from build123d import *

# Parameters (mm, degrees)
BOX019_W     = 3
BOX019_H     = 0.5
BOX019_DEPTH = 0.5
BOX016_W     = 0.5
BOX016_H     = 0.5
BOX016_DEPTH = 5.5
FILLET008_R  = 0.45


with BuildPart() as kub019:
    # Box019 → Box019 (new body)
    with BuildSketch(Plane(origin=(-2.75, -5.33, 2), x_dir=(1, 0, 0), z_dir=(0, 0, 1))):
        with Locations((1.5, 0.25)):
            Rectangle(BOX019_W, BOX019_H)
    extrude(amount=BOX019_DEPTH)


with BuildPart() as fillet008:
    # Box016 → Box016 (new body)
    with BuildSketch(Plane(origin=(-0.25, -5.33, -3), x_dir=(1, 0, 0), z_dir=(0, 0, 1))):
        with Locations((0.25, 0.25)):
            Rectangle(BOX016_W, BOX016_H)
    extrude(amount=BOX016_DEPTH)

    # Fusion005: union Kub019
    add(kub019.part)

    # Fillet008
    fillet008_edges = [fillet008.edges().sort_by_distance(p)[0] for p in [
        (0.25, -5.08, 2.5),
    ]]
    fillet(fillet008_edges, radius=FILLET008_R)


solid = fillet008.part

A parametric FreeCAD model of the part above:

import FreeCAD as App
import Part
import Sketcher


def edges_at(feature, points):
    """Names of the edges that pass closest to the given points."""
    edges = feature.Shape.Edges
    near = lambda p: min(range(len(edges)), key=lambda i: edges[i].distToShape(Part.Vertex(*p))[0])
    return sorted({f"Edge{near(p) + 1}" for p in points})

doc = App.newDocument("Part")
body = doc.addObject("PartDesign::Body", "Body")

sketch1 = body.newObject("Sketcher::SketchObject", "Sketch")
sketch1.AttachmentSupport = (doc.getObject("XY_Plane"), [""])
sketch1.MapMode = "FlatFace"
sketch1.AttachmentOffset = App.Placement(App.Vector(0, 0, 2), App.Rotation())
sketch1.addGeometry([
    Part.LineSegment(App.Vector(-2.8, -4.8, 0), App.Vector(-2.8, -5.3, 0)),
    Part.LineSegment(App.Vector(-2.8, -5.3, 0), App.Vector(0.2, -5.3, 0)),
    Part.LineSegment(App.Vector(0.2, -5.3, 0), App.Vector(0.2, -4.8, 0)),
    Part.LineSegment(App.Vector(0.2, -4.8, 0), App.Vector(-2.8, -4.8, 0)),
], False)
sketch1.addConstraint([
    Sketcher.Constraint("Coincident", 0, 2, 1, 1),
    Sketcher.Constraint("Coincident", 1, 2, 2, 1),
    Sketcher.Constraint("Coincident", 2, 2, 3, 1),
    Sketcher.Constraint("Coincident", 3, 2, 0, 1),
    Sketcher.Constraint("Vertical", 0),
    Sketcher.Constraint("Horizontal", 1),
    Sketcher.Constraint("Vertical", 2),
    Sketcher.Constraint("Horizontal", 3),
    Sketcher.Constraint("DistanceX", 1, 1, 1, 2, 3.0),
    Sketcher.Constraint("DistanceY", 0, 2, 0, 1, 0.5),
    Sketcher.Constraint("DistanceX", 0, 2, -1, 1, 2.75),
    Sketcher.Constraint("DistanceY", 0, 2, -1, 1, 5.33),
])
pad1 = body.newObject("PartDesign::Pad", "Pad")
pad1.Profile = sketch1
pad1.Length = 0.5
body2 = doc.addObject("PartDesign::Body", "Body001")

sketch2 = body2.newObject("Sketcher::SketchObject", "Sketch001")
sketch2.AttachmentSupport = (doc.getObject("XY_Plane001"), [""])
sketch2.MapMode = "FlatFace"
sketch2.AttachmentOffset = App.Placement(App.Vector(0, 0, -3), App.Rotation())
sketch2.addGeometry([
    Part.LineSegment(App.Vector(-0.2, -4.8, 0), App.Vector(-0.2, -5.3, 0)),
    Part.LineSegment(App.Vector(-0.2, -5.3, 0), App.Vector(0.2, -5.3, 0)),
    Part.LineSegment(App.Vector(0.2, -5.3, 0), App.Vector(0.2, -4.8, 0)),
    Part.LineSegment(App.Vector(0.2, -4.8, 0), App.Vector(-0.2, -4.8, 0)),
], False)
sketch2.addConstraint([
    Sketcher.Constraint("Coincident", 0, 2, 1, 1),
    Sketcher.Constraint("Coincident", 1, 2, 2, 1),
    Sketcher.Constraint("Coincident", 2, 2, 3, 1),
    Sketcher.Constraint("Coincident", 3, 2, 0, 1),
    Sketcher.Constraint("Vertical", 0),
    Sketcher.Constraint("Horizontal", 1),
    Sketcher.Constraint("Vertical", 2),
    Sketcher.Constraint("Horizontal", 3),
    Sketcher.Constraint("Equal", 3, 0),
    Sketcher.Constraint("DistanceX", 1, 1, 1, 2, 0.5),
    Sketcher.Constraint("DistanceX", 0, 2, -1, 1, 0.25),
    Sketcher.Constraint("DistanceY", 0, 2, -1, 1, 5.33),
])
pad2 = body2.newObject("PartDesign::Pad", "Pad001")
pad2.Profile = sketch2
pad2.Length = 5.5
doc.recompute()

boolean = body2.newObject("PartDesign::Boolean", "Boolean")
boolean.Type = "Fuse"
boolean.addObjects([body])
doc.recompute()

fillet = body2.newObject("PartDesign::Fillet", "Fillet")
fillet.Base = (boolean, edges_at(boolean, [(0.25, -5.08, 2.5)]))
fillet.Radius = 0.45

doc.recompute()
